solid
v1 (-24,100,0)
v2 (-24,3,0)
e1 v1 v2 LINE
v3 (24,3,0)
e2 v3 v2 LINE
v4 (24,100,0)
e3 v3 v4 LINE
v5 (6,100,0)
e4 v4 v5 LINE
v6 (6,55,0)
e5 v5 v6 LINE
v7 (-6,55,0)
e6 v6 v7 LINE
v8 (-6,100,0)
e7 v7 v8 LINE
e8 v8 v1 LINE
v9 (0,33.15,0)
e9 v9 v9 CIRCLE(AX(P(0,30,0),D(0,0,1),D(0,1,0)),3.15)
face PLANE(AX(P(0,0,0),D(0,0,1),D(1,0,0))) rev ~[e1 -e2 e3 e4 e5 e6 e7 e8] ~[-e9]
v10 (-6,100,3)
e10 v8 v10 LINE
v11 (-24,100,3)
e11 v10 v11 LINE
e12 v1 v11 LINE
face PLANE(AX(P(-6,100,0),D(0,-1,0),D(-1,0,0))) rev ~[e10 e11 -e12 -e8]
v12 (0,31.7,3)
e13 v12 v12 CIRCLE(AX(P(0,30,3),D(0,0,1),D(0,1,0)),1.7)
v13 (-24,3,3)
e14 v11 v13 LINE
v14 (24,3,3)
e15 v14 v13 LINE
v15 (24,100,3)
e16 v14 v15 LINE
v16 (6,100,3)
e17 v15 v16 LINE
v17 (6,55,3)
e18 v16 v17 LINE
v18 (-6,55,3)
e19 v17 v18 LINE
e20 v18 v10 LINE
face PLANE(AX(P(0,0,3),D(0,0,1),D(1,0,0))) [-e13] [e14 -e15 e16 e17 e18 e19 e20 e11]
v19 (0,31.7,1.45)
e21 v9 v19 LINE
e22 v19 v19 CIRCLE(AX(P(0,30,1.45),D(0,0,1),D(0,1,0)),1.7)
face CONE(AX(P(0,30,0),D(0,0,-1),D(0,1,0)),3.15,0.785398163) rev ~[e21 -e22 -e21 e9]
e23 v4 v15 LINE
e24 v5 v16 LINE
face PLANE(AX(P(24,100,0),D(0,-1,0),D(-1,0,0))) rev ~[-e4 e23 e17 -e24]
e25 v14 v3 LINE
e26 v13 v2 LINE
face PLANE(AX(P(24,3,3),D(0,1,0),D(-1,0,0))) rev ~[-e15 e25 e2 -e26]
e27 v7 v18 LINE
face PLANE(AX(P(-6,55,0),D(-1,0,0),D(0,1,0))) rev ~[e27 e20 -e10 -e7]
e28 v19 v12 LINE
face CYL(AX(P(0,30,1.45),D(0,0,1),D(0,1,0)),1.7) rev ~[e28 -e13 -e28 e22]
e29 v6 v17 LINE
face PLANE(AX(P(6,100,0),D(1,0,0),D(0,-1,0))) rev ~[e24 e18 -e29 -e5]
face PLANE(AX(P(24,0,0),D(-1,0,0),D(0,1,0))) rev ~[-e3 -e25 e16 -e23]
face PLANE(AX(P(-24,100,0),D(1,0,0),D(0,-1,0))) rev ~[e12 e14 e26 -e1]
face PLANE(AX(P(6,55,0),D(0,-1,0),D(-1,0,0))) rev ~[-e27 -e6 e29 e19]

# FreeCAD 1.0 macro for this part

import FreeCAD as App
import Part
import Sketcher
Q = App.Units.Quantity

doc = App.newDocument("Part")
params = doc.addObject("Spreadsheet::Sheet", "Params")
for row, (alias, value) in enumerate([
    ("sketch1_width", "48 mm"),
    ("sketch1_width2", "12 mm"),
    ("sketch1_height", "100 mm"),
    ("sketch1_height2", "45 mm"),
    ("pad1_length", "3 mm"),
    ("sketch2_height", "3 mm"),
    ("sketch2_width", "48 mm"),
    ("sketch3_diameter", "3.4 mm"),
    ("hole_diameter", "3.4 mm"),
    ("hole_csink_diameter", "6.3 mm"),
], start=1):
    params.set(f"A{row}", alias)
    params.set(f"B{row}", "=" + value)
    params.setAlias(f"B{row}", alias)

body = doc.addObject("PartDesign::Body", "Body")

sketch1 = body.newObject("Sketcher::SketchObject", "Sketch")
sketch1.AttachmentSupport = (doc.getObject("XY_Plane"), [""])
sketch1.MapMode = "FlatFace"
sketch1.addGeometry(Part.LineSegment(App.Vector(-24, 100, 0), App.Vector(-24, 0, 0)), False)
sketch1.addGeometry(Part.LineSegment(App.Vector(-24, 0, 0), App.Vector(24, 0, 0)), False)
sketch1.addGeometry(Part.LineSegment(App.Vector(24, 0, 0), App.Vector(24, 100, 0)), False)
sketch1.addGeometry(Part.LineSegment(App.Vector(24, 100, 0), App.Vector(6, 100, 0)), False)
sketch1.addGeometry(Part.LineSegment(App.Vector(6, 100, 0), App.Vector(6, 55, 0)), False)
sketch1.addGeometry(Part.LineSegment(App.Vector(6, 55, 0), App.Vector(-6, 55, 0)), False)
sketch1.addGeometry(Part.LineSegment(App.Vector(-6, 55, 0), App.Vector(-6, 100, 0)), False)
sketch1.addGeometry(Part.LineSegment(App.Vector(-6, 100, 0), App.Vector(-24, 100, 0)), False)
sketch1.addConstraint(Sketcher.Constraint("Coincident", 0, 2, 1, 1))
sketch1.addConstraint(Sketcher.Constraint("Coincident", 1, 2, 2, 1))
sketch1.addConstraint(Sketcher.Constraint("Coincident", 2, 2, 3, 1))
sketch1.addConstraint(Sketcher.Constraint("Coincident", 3, 2, 4, 1))
sketch1.addConstraint(Sketcher.Constraint("Coincident", 4, 2, 5, 1))
sketch1.addConstraint(Sketcher.Constraint("Coincident", 5, 2, 6, 1))
sketch1.addConstraint(Sketcher.Constraint("Coincident", 6, 2, 7, 1))
sketch1.addConstraint(Sketcher.Constraint("Coincident", 7, 2, 0, 1))
sketch1.addConstraint(Sketcher.Constraint("Vertical", 0))
sketch1.addConstraint(Sketcher.Constraint("Horizontal", 1))
sketch1.addConstraint(Sketcher.Constraint("Vertical", 2))
sketch1.addConstraint(Sketcher.Constraint("Horizontal", 3))
sketch1.addConstraint(Sketcher.Constraint("Vertical", 4))
sketch1.addConstraint(Sketcher.Constraint("Horizontal", 5))
sketch1.addConstraint(Sketcher.Constraint("Vertical", 6))
sketch1.addConstraint(Sketcher.Constraint("Horizontal", 7))
sketch1.addConstraint(Sketcher.Constraint("Symmetric", 0, 2, 1, 2, -1, 1))
sketch1.addConstraint(Sketcher.Constraint("Symmetric", 3, 2, 6, 2, -2))
sketch1.addConstraint(Sketcher.Constraint("DistanceX", 1, 1, 1, 2, Q("48 mm")))
sketch1.addConstraint(Sketcher.Constraint("DistanceX", 5, 2, 5, 1, Q("12 mm")))
sketch1.addConstraint(Sketcher.Constraint("DistanceY", 0, 2, 0, 1, Q("100 mm")))
sketch1.addConstraint(Sketcher.Constraint("DistanceY", 4, 2, 4, 1, Q("45 mm")))
sketch1.setExpression("Constraints[18]", "Params.sketch1_width")
sketch1.setExpression("Constraints[19]", "Params.sketch1_width2")
sketch1.setExpression("Constraints[20]", "Params.sketch1_height")
sketch1.setExpression("Constraints[21]", "Params.sketch1_height2")
pad1 = body.newObject("PartDesign::Pad", "Pad")
pad1.Profile = sketch1
pad1.setExpression("Length", "Params.pad1_length")

sketch2 = body.newObject("Sketcher::SketchObject", "Sketch001")
sketch2.AttachmentSupport = (doc.getObject("XY_Plane"), [""])
sketch2.MapMode = "FlatFace"
sketch2.AttachmentOffset = App.Placement(App.Vector(0, 0, 3), App.Rotation())
sketch2.addGeometry(Part.LineSegment(App.Vector(24, 0, 0), App.Vector(24, 3, 0)), False)
sketch2.addGeometry(Part.LineSegment(App.Vector(24, 3, 0), App.Vector(-24, 3, 0)), False)
sketch2.addGeometry(Part.LineSegment(App.Vector(-24, 3, 0), App.Vector(-24, 0, 0)), False)
sketch2.addGeometry(Part.LineSegment(App.Vector(-24, 0, 0), App.Vector(24, 0, 0)), False)
sketch2.addConstraint(Sketcher.Constraint("Coincident", 0, 2, 1, 1))
sketch2.addConstraint(Sketcher.Constraint("Coincident", 1, 2, 2, 1))
sketch2.addConstraint(Sketcher.Constraint("Coincident", 2, 2, 3, 1))
sketch2.addConstraint(Sketcher.Constraint("Coincident", 3, 2, 0, 1))
sketch2.addConstraint(Sketcher.Constraint("Vertical", 0))
sketch2.addConstraint(Sketcher.Constraint("Horizontal", 1))
sketch2.addConstraint(Sketcher.Constraint("Vertical", 2))
sketch2.addConstraint(Sketcher.Constraint("Horizontal", 3))
sketch2.addConstraint(Sketcher.Constraint("Symmetric", 2, 2, 3, 2, -1, 1))
sketch2.addConstraint(Sketcher.Constraint("DistanceY", 0, 1, 0, 2, Q("3 mm")))
sketch2.addConstraint(Sketcher.Constraint("DistanceX", 1, 2, 1, 1, Q("48 mm")))
sketch2.setExpression("Constraints[9]", "Params.sketch2_height")
sketch2.setExpression("Constraints[10]", "Params.sketch2_width")
pocket1 = body.newObject("PartDesign::Pocket", "Pocket")
pocket1.Profile = sketch2
pocket1.Type = "ThroughAll"

sketch3 = body.newObject("Sketcher::SketchObject", "Sketch002")
sketch3.AttachmentSupport = (doc.getObject("XY_Plane"), [""])
sketch3.MapMode = "FlatFace"
sketch3.addGeometry(Part.Circle(App.Vector(0, 30, 0), App.Vector(0, 0, 1), 1.7), False)
sketch3.addConstraint(Sketcher.Constraint("PointOnObject", 0, 3, -2))
sketch3.addConstraint(Sketcher.Constraint("Diameter", 0, Q("3.4 mm")))
sketch3.addConstraint(Sketcher.Constraint("DistanceY", -1, 1, 0, 3, Q("30 mm")))
sketch3.setExpression("Constraints[1]", "Params.sketch3_diameter")
doc.recompute()
hole = body.newObject("PartDesign::Hole", "Hole")
hole.Profile = sketch3
hole.ThreadType = "None"
hole.setExpression("Diameter", "Params.hole_diameter")
hole.DepthType = "ThroughAll"
hole.HoleCutType = "Countersink"
hole.setExpression("HoleCutDiameter", "Params.hole_csink_diameter")
hole.HoleCutCountersinkAngle = 90
hole.Reversed = True

doc.recompute()
